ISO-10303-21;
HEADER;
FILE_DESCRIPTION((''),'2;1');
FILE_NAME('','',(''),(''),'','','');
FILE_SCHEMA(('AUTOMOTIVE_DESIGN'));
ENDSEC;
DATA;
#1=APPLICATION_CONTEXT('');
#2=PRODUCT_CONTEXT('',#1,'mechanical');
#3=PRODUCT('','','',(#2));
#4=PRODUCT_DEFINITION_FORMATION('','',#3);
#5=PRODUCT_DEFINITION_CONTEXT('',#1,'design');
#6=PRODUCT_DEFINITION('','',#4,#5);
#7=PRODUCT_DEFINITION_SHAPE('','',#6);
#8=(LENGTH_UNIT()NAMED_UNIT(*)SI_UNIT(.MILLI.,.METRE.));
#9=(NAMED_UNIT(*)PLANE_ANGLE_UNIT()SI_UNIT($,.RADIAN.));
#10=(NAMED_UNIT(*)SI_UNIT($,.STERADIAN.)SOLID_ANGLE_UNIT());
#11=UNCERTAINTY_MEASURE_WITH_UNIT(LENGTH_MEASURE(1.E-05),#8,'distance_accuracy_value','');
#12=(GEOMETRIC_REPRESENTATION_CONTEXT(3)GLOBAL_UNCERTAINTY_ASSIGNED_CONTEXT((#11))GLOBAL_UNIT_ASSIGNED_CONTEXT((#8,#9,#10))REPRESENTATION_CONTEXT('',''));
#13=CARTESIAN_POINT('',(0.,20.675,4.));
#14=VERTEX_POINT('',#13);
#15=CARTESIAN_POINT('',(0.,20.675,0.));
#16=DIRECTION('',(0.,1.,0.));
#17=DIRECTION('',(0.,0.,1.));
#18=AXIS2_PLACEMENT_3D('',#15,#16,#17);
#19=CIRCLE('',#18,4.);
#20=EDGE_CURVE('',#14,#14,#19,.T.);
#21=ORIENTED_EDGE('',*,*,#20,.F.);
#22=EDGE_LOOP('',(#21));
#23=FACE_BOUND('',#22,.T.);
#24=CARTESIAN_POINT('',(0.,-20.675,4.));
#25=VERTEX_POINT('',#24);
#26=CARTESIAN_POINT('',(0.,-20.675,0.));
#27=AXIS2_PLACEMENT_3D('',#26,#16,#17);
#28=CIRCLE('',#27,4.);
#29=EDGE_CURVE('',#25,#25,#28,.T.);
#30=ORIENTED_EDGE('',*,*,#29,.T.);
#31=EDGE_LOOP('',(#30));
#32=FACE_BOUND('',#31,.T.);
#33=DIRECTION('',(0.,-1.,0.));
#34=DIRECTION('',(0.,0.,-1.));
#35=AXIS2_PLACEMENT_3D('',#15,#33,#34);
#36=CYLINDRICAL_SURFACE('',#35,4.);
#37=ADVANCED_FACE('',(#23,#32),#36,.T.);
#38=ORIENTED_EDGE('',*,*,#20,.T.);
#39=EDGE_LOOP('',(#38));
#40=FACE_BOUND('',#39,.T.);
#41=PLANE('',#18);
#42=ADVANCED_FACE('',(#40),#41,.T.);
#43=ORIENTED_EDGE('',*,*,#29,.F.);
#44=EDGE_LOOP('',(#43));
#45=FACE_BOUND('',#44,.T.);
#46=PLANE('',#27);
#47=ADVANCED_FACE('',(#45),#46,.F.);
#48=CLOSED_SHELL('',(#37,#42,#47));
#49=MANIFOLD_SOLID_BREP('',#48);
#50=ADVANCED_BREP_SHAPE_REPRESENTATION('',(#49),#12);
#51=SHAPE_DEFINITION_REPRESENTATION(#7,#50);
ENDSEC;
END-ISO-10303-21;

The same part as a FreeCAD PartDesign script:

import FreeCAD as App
import Part
import Sketcher

V = App.Vector
Q = App.Units.Quantity

doc = App.newDocument("Part")
body = doc.addObject("PartDesign::Body", "Body")

sketch1 = body.newObject("Sketcher::SketchObject", "Sketch")
sketch1.AttachmentSupport = (doc.getObject("XZ_Plane"), [""])
sketch1.MapMode = "FlatFace"
sketch1.addGeometry(Part.Circle(V(0, 0, 0), V(0, 0, 1), 4), False)
sketch1.addConstraint([
    Sketcher.Constraint("Coincident", 0, 3, -1, 1),
    Sketcher.Constraint("Diameter", 0, Q("8 mm")),
])
pad1 = body.newObject("PartDesign::Pad", "Pad")
pad1.Profile = sketch1
pad1.Length = 41.35
pad1.Midplane = True

doc.recompute()
